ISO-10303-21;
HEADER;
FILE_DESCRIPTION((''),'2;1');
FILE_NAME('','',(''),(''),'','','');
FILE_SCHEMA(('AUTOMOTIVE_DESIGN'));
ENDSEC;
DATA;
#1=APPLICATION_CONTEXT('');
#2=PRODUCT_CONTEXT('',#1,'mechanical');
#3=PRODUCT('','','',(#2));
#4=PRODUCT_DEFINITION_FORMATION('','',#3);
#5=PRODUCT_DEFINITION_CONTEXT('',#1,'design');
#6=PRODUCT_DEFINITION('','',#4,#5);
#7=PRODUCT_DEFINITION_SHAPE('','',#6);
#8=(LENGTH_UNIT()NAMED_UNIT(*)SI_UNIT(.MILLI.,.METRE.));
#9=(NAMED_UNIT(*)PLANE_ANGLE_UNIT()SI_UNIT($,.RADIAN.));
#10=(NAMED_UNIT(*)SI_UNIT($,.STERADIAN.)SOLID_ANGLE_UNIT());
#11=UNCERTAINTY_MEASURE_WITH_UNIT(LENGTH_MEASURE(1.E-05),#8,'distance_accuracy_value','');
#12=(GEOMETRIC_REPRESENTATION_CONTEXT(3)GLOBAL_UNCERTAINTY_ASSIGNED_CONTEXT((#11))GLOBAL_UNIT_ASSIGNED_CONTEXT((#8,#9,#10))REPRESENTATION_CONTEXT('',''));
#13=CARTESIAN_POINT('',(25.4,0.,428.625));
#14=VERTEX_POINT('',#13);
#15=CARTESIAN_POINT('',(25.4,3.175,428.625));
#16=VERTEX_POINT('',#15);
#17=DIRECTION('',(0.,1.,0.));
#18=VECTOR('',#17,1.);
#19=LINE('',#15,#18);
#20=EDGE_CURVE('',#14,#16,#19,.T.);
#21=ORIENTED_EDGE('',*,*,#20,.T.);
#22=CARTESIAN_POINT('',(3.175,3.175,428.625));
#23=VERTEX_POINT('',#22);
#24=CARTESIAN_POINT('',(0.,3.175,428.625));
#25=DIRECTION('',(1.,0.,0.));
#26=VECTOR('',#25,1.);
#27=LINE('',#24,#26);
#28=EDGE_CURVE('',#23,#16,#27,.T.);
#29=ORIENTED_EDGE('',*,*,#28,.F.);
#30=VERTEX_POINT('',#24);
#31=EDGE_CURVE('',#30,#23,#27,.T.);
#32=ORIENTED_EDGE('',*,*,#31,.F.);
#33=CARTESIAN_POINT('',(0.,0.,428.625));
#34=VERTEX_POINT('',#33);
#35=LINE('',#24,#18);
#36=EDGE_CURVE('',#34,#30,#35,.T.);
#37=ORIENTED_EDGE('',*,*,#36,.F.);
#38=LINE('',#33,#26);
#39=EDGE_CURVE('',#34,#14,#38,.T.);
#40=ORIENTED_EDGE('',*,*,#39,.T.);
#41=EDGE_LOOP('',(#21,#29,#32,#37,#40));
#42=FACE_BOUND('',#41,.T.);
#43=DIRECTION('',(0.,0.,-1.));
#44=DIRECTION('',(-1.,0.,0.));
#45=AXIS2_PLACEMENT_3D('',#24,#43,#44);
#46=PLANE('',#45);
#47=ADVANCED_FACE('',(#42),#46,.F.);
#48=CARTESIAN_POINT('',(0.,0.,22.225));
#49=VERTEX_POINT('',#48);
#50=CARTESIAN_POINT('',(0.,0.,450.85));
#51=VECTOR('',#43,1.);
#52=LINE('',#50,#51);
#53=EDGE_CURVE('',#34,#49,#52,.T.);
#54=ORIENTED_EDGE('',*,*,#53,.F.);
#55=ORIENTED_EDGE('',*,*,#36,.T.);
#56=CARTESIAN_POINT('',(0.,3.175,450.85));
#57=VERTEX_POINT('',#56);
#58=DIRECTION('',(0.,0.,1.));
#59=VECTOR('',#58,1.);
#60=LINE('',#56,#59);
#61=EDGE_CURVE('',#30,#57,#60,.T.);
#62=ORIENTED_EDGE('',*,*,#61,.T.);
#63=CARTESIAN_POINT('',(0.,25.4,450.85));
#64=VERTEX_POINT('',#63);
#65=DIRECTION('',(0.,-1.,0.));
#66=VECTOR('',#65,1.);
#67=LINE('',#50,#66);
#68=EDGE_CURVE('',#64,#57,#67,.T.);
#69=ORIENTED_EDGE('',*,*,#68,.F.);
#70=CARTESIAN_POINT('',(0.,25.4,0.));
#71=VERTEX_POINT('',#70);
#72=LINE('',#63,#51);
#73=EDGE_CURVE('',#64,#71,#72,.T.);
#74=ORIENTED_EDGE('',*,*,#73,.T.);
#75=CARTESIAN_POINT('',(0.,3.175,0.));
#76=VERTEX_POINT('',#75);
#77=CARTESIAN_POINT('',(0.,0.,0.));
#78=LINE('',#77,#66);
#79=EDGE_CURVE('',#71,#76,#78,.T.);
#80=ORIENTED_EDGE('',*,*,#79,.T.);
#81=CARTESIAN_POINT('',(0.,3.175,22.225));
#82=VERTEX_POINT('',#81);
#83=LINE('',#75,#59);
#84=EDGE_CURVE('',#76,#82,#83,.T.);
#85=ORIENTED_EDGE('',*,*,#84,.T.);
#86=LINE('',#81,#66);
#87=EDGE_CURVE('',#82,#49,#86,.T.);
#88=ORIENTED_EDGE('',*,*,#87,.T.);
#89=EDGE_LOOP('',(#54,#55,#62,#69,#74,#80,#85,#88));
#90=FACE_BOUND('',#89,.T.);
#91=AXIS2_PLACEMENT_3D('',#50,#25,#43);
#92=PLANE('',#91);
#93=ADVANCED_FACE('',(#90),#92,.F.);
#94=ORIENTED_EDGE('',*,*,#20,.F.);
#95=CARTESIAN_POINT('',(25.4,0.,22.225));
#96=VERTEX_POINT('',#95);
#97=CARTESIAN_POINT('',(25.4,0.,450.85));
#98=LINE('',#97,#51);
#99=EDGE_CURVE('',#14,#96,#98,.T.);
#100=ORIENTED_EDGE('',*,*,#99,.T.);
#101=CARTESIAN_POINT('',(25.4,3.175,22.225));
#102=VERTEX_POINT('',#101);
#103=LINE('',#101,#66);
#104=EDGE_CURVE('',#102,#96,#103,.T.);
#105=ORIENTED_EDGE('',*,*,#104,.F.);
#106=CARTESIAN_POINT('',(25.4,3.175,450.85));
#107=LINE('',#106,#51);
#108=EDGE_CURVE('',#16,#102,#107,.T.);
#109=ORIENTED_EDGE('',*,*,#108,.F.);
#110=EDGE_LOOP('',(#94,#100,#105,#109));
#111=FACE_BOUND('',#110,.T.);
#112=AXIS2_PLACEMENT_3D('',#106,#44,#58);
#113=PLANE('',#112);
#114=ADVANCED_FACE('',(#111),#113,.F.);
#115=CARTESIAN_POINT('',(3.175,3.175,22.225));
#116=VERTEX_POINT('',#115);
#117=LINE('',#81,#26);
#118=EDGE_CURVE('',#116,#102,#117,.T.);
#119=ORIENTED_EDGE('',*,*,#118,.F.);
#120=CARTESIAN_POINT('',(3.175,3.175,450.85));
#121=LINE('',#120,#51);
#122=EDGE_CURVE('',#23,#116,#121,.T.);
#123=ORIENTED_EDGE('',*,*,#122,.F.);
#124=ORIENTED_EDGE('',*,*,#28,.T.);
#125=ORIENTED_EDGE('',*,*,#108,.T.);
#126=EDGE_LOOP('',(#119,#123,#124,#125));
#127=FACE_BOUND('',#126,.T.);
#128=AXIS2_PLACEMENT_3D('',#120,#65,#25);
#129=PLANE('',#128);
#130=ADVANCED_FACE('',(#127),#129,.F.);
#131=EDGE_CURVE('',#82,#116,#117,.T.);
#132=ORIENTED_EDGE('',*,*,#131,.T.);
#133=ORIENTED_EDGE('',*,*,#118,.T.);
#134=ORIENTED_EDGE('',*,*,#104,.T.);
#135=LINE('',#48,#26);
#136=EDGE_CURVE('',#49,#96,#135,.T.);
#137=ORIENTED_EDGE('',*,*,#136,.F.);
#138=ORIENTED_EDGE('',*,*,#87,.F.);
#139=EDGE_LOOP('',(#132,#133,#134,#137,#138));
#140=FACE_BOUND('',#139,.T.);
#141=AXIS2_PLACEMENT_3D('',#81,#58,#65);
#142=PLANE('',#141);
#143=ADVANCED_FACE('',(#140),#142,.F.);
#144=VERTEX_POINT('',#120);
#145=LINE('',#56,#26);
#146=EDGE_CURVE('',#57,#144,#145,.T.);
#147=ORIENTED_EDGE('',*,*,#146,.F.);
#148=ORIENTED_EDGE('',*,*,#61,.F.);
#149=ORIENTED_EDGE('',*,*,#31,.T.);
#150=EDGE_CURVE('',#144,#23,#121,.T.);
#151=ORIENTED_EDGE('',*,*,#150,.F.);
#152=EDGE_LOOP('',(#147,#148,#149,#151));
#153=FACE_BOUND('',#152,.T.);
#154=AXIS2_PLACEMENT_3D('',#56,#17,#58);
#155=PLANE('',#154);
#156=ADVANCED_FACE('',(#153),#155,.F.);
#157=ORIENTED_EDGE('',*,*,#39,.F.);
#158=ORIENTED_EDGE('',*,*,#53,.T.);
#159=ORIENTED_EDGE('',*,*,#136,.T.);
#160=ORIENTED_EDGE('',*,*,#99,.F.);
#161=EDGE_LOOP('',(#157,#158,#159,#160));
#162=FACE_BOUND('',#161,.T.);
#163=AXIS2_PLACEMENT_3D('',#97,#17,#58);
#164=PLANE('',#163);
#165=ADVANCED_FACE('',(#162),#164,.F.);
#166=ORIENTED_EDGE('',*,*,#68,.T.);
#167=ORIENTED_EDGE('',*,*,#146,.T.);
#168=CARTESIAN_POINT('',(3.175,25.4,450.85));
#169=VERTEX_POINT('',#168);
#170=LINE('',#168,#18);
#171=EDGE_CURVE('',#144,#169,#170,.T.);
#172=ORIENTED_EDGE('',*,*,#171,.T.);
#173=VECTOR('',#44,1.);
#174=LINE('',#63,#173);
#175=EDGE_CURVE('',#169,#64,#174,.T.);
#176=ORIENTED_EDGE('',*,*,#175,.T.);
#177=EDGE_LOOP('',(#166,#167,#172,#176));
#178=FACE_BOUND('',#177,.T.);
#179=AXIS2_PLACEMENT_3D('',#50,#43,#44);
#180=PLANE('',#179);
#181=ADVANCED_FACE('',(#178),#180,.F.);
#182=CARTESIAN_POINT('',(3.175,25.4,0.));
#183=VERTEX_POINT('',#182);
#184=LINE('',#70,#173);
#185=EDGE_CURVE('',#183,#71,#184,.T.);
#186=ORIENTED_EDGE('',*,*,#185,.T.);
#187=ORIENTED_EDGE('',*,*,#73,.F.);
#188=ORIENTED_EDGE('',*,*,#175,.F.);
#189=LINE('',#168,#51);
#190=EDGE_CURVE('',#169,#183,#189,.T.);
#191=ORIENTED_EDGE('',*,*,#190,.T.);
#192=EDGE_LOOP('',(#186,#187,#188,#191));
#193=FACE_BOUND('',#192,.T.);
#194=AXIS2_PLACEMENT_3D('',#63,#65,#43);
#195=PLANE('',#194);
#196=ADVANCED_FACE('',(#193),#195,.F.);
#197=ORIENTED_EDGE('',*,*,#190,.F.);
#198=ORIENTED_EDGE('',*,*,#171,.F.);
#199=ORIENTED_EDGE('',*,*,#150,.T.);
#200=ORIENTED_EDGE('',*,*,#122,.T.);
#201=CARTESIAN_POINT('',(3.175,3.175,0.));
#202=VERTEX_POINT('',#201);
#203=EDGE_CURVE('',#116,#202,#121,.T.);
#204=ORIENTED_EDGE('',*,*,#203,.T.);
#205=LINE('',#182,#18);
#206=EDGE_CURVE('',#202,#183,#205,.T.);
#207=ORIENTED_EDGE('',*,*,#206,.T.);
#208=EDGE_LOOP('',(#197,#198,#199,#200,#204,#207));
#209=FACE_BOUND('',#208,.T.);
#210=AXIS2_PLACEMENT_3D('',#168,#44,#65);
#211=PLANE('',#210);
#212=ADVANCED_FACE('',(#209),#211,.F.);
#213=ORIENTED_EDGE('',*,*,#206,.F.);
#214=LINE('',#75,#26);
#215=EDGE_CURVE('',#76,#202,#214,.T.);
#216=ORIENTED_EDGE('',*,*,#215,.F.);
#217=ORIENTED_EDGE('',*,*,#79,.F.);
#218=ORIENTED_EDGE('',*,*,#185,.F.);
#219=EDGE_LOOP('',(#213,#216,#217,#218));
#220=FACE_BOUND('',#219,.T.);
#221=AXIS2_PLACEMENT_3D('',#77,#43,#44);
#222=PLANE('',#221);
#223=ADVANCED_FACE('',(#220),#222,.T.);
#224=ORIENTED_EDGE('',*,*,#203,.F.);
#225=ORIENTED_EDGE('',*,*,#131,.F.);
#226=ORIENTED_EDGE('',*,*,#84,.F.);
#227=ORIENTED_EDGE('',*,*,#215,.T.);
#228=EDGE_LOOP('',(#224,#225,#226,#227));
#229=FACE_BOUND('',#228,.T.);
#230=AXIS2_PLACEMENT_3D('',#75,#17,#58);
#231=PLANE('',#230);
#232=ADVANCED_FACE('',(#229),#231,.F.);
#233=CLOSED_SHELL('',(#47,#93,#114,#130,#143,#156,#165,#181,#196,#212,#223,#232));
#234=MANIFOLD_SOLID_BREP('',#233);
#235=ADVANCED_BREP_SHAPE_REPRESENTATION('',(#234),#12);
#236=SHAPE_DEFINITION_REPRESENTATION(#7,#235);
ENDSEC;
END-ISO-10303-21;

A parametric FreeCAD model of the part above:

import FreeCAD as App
import Part
import Sketcher
from FreeCAD import Vector
Q = App.Units.Quantity

doc = App.newDocument("Part")
body = doc.addObject("PartDesign::Body", "Body")

sketch1 = doc.addObject("Sketcher::SketchObject", "Sketch")
body.addObject(sketch1)
sketch1.AttachmentSupport = (doc.XY_Plane, [""])
sketch1.MapMode = "FlatFace"
sketch1.addGeometry([
    Part.LineSegment(Vector(0, 25.4, 0), Vector(0, 0, 0)),
    Part.LineSegment(Vector(0, 0, 0), Vector(25.4, 0, 0)),
    Part.LineSegment(Vector(25.4, 0, 0), Vector(25.4, 3.2, 0)),
    Part.LineSegment(Vector(25.4, 3.2, 0), Vector(3.2, 3.2, 0)),
    Part.LineSegment(Vector(3.2, 3.2, 0), Vector(3.2, 25.4, 0)),
    Part.LineSegment(Vector(3.2, 25.4, 0), Vector(0, 25.4, 0)),
], False)
sketch1.addConstraint([
    Sketcher.Constraint("Coincident", 0, 2, 1, 1),
    Sketcher.Constraint("Coincident", 1, 2, 2, 1),
    Sketcher.Constraint("Coincident", 2, 2, 3, 1),
    Sketcher.Constraint("Coincident", 3, 2, 4, 1),
    Sketcher.Constraint("Coincident", 4, 2, 5, 1),
    Sketcher.Constraint("Coincident", 5, 2, 0, 1),
    Sketcher.Constraint("Vertical", 0),
    Sketcher.Constraint("Horizontal", 1),
    Sketcher.Constraint("Vertical", 2),
    Sketcher.Constraint("Horizontal", 3),
    Sketcher.Constraint("Vertical", 4),
    Sketcher.Constraint("Horizontal", 5),
    Sketcher.Constraint("Coincident", 0, 2, -1, 1),
    Sketcher.Constraint("Equal", 1, 0),
    Sketcher.Constraint("Equal", 5, 2),
    Sketcher.Constraint("DistanceX", 1, 1, 1, 2, Q("1 in")),
    Sketcher.Constraint("DistanceX", 3, 2, 3, 1, Q("0.875 in")),
])
pad1 = doc.addObject("PartDesign::Pad", "Pad")
body.addObject(pad1)
pad1.Profile = sketch1
pad1.Length = Q("17.75 in")

sketch2 = doc.addObject("Sketcher::SketchObject", "Sketch001")
body.addObject(sketch2)
sketch2.AttachmentSupport = (doc.YZ_Plane, [""])
sketch2.MapMode = "FlatFace"
sketch2.AttachmentOffset = App.Placement(Vector(0, 0, 1 * 25.4), App.Rotation())
sketch2.addGeometry([
    Part.LineSegment(Vector(3.2, 450.9, 0), Vector(0, 450.9, 0)),
    Part.LineSegment(Vector(0, 450.9, 0), Vector(0, 428.6, 0)),
    Part.LineSegment(Vector(0, 428.6, 0), Vector(3.2, 428.6, 0)),
    Part.LineSegment(Vector(3.2, 428.6, 0), Vector(3.2, 450.9, 0)),
    Part.LineSegment(Vector(3.2, 22.2, 0), Vector(0, 22.2, 0)),
    Part.LineSegment(Vector(0, 22.2, 0), Vector(0, 0, 0)),
    Part.LineSegment(Vector(0, 0, 0), Vector(3.2, 0, 0)),
    Part.LineSegment(Vector(3.2, 0, 0), Vector(3.2, 22.2, 0)),
], False)
sketch2.addConstraint([
    Sketcher.Constraint("Coincident", 0, 2, 1, 1),
    Sketcher.Constraint("Coincident", 1, 2, 2, 1),
    Sketcher.Constraint("Coincident", 2, 2, 3, 1),
    Sketcher.Constraint("Coincident", 3, 2, 0, 1),
    Sketcher.Constraint("Coincident", 4, 2, 5, 1),
    Sketcher.Constraint("Coincident", 5, 2, 6, 1),
    Sketcher.Constraint("Coincident", 6, 2, 7, 1),
    Sketcher.Constraint("Coincident", 7, 2, 4, 1),
    Sketcher.Constraint("Horizontal", 0),
    Sketcher.Constraint("Vertical", 1),
    Sketcher.Constraint("Horizontal", 2),
    Sketcher.Constraint("Vertical", 3),
    Sketcher.Constraint("Horizontal", 4),
    Sketcher.Constraint("Vertical", 5),
    Sketcher.Constraint("Horizontal", 6),
    Sketcher.Constraint("Vertical", 7),
    Sketcher.Constraint("Coincident", 5, 2, -1, 1),
    Sketcher.Constraint("PointOnObject", 0, 2, -2),
    Sketcher.Constraint("Vertical", 3, 2, 6, 2),
    Sketcher.Constraint("Equal", 3, 5),
    Sketcher.Constraint("DistanceY", 4, 2, 1, 2, Q("16 in")),
    Sketcher.Constraint("DistanceX", 0, 2, 0, 1, Q("0.125 in")),
    Sketcher.Constraint("DistanceY", 1, 2, 1, 1, Q("0.875 in")),
])
pocket1 = doc.addObject("PartDesign::Pocket", "Pocket")
body.addObject(pocket1)
pocket1.Profile = sketch2
pocket1.Type = "ThroughAll"

doc.recompute()
